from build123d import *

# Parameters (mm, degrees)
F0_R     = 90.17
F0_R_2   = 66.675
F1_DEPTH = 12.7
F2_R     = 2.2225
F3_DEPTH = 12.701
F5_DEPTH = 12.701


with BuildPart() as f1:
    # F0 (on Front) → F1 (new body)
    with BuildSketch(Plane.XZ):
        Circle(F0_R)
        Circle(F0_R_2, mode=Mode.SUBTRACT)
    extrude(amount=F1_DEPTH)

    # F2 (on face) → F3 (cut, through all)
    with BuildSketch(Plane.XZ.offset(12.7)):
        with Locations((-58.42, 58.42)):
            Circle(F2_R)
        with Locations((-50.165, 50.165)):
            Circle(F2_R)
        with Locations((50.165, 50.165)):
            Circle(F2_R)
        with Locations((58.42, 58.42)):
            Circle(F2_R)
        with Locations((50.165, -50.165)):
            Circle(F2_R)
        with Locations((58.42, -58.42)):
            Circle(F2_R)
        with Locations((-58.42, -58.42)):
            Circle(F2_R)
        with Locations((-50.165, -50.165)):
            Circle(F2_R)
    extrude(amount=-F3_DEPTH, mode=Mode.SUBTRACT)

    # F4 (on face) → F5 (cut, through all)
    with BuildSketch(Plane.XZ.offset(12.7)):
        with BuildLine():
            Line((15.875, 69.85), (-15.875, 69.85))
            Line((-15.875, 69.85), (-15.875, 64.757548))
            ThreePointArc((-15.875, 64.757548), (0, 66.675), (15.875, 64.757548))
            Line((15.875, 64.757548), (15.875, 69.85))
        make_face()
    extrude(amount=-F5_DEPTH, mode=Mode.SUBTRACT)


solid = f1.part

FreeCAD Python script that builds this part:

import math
import FreeCAD as App
import Part
import Sketcher
Q = App.Units.Quantity

doc = App.newDocument("Part")
body = doc.addObject("PartDesign::Body", "Body")

sketch1 = doc.addObject("Sketcher::SketchObject", "Sketch")
body.addObject(sketch1)
sketch1.AttachmentSupport = (doc.XZ_Plane, [""])
sketch1.MapMode = "FlatFace"
sketch1.addGeometry([
    Part.Circle(App.Vector(0, 0, 0), App.Vector(0, 0, 1), 90.17),
    Part.Circle(App.Vector(0, 0, 0), App.Vector(0, 0, 1), 66.675),
], False)
sketch1.addConstraint([
    Sketcher.Constraint("Coincident", 0, 3, -1, 1),
    Sketcher.Constraint("Coincident", 1, 3, -1, 1),
    Sketcher.Constraint("Diameter", 0, Q("7.1 in")),
    Sketcher.Constraint("Diameter", 1, Q("5.25 in")),
])
pad1 = doc.addObject("PartDesign::Pad", "Pad")
body.addObject(pad1)
pad1.Profile = sketch1
pad1.Length = Q("0.5 in")

sketch2 = doc.addObject("Sketcher::SketchObject", "Sketch001")
body.addObject(sketch2)
sketch2.AttachmentSupport = (doc.XZ_Plane, [""])
sketch2.MapMode = "FlatFace"
sketch2.AttachmentOffset = App.Placement(App.Vector(0, 0, 0.5 * 25.4), App.Rotation())
sketch2.addGeometry([
    Part.Circle(App.Vector(-58.42, 58.42, 0), App.Vector(0, 0, 1), 2.2225),
    Part.Circle(App.Vector(-50.165, 50.165, 0), App.Vector(0, 0, 1), 2.2225),
    Part.Circle(App.Vector(50.165, 50.165, 0), App.Vector(0, 0, 1), 2.2225),
    Part.Circle(App.Vector(58.42, 58.42, 0), App.Vector(0, 0, 1), 2.2225),
    Part.Circle(App.Vector(50.165, -50.165, 0), App.Vector(0, 0, 1), 2.2225),
    Part.Circle(App.Vector(58.42, -58.42, 0), App.Vector(0, 0, 1), 2.2225),
    Part.Circle(App.Vector(-58.42, -58.42, 0), App.Vector(0, 0, 1), 2.2225),
    Part.Circle(App.Vector(-50.165, -50.165, 0), App.Vector(0, 0, 1), 2.2225),
], False)
sketch2.addConstraint([
    Sketcher.Constraint("Equal", 0, 1),
    Sketcher.Constraint("Equal", 1, 2),
    Sketcher.Constraint("Equal", 2, 3),
    Sketcher.Constraint("Equal", 3, 4),
    Sketcher.Constraint("Equal", 4, 5),
    Sketcher.Constraint("Equal", 5, 6),
    Sketcher.Constraint("Equal", 6, 7),
    Sketcher.Constraint("Symmetric", 1, 3, 4, 3, -1, 1),
    Sketcher.Constraint("Symmetric", 0, 3, 5, 3, -1, 1),
    Sketcher.Constraint("Symmetric", 3, 3, 6, 3, -1, 1),
    Sketcher.Constraint("Symmetric", 2, 3, 7, 3, -1, 1),
    Sketcher.Constraint("Symmetric", 1, 3, 2, 3, -2),
    Sketcher.Constraint("Symmetric", 0, 3, 3, 3, -2),
    Sketcher.Constraint("Diameter", 0, Q("0.175 in")),
    Sketcher.Constraint("DistanceX", 0, 3, -1, 1, Q("2.3 in")),
    Sketcher.Constraint("DistanceY", -1, 1, 0, 3, Q("2.3 in")),
    Sketcher.Constraint("DistanceX", 1, 3, 2, 3, Q("3.95 in")),
    Sketcher.Constraint("DistanceY", 4, 3, 2, 3, Q("3.95 in")),
])
pocket1 = doc.addObject("PartDesign::Pocket", "Pocket")
body.addObject(pocket1)
pocket1.Profile = sketch2
pocket1.Type = "ThroughAll"

sketch3 = doc.addObject("Sketcher::SketchObject", "Sketch002")
body.addObject(sketch3)
sketch3.AttachmentSupport = (doc.XZ_Plane, [""])
sketch3.MapMode = "FlatFace"
sketch3.AttachmentOffset = App.Placement(App.Vector(0, 0, 0.5 * 25.4), App.Rotation())
sketch3.addGeometry([
    Part.LineSegment(App.Vector(15.875, 69.85, 0), App.Vector(-15.875, 69.85, 0)),
    Part.LineSegment(App.Vector(-15.875, 69.85, 0), App.Vector(-15.875, 64.757548, 0)),
    Part.ArcOfCircle(Part.Circle(App.Vector(0, -0.000006, 0), App.Vector(0, 0, 1), 66.675006), math.radians(76.225854), math.radians(103.774146)),
    Part.LineSegment(App.Vector(15.875, 64.757548, 0), App.Vector(15.875, 69.85, 0)),
], False)
sketch3.addConstraint([
    Sketcher.Constraint("Coincident", 0, 2, 1, 1),
    Sketcher.Constraint("Coincident", 1, 2, 2, 2),
    Sketcher.Constraint("Coincident", 2, 1, 3, 1),
    Sketcher.Constraint("Coincident", 3, 2, 0, 1),
    Sketcher.Constraint("Horizontal", 0),
    Sketcher.Constraint("Vertical", 1),
    Sketcher.Constraint("Vertical", 3),
    Sketcher.Constraint("Coincident", 2, 3, -1, 1),
    Sketcher.Constraint("Horizontal", 1, 2, 2, 1),
    Sketcher.Constraint("DistanceX", 0, 2, 0, 1, Q("1.25 in")),
    Sketcher.Constraint("DistanceY", -1, 1, 0, 2, Q("2.75 in")),
    Sketcher.Constraint("Radius", 2, Q("66.675006 mm")),
])
pocket2 = doc.addObject("PartDesign::Pocket", "Pocket001")
body.addObject(pocket2)
pocket2.Profile = sketch3
pocket2.Type = "ThroughAll"

doc.recompute()
